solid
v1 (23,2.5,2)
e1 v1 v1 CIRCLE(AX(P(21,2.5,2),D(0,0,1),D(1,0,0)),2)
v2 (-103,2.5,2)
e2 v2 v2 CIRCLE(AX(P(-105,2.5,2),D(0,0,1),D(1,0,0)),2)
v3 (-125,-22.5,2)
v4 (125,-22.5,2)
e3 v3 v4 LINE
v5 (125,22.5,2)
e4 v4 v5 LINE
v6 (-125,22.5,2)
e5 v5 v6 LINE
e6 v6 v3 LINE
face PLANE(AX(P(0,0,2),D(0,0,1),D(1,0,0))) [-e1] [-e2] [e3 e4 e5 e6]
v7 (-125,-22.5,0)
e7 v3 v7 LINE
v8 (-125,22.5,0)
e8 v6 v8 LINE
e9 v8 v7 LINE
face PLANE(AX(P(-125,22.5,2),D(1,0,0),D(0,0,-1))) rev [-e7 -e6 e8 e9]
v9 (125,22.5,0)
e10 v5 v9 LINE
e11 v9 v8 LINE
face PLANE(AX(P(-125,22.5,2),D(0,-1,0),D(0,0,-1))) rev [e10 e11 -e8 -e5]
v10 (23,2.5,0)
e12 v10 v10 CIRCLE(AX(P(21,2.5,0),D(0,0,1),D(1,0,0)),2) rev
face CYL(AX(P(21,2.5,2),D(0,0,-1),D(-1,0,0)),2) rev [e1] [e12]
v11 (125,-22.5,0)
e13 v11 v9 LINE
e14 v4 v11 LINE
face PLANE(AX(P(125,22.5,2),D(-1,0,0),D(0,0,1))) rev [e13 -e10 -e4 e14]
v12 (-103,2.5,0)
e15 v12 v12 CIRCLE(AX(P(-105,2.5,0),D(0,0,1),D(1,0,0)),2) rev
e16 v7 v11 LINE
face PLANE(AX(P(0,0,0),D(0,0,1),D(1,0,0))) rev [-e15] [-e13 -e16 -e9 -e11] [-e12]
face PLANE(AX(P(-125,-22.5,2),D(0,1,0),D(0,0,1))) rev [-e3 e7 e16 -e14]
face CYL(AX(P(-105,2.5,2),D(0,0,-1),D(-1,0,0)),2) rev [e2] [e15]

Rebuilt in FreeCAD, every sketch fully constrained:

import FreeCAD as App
import Part
import Sketcher
Q = App.Units.Quantity

doc = App.newDocument("Part")
body = doc.addObject("PartDesign::Body", "Body")

# Sketch on XY plane
sketch1 = body.newObject("Sketcher::SketchObject", "Sketch")
sketch1.AttachmentSupport = (doc.getObject("XY_Plane"), [""])
sketch1.MapMode = "FlatFace"
sketch1.addGeometry([
    Part.LineSegment(App.Vector(-125, 22.5, 0), App.Vector(-125, -22.5, 0)),
    Part.LineSegment(App.Vector(-125, -22.5, 0), App.Vector(125, -22.5, 0)),
    Part.LineSegment(App.Vector(125, -22.5, 0), App.Vector(125, 22.5, 0)),
    Part.LineSegment(App.Vector(125, 22.5, 0), App.Vector(-125, 22.5, 0)),
], False)
sketch1.addConstraint([
    Sketcher.Constraint("Coincident", 0, 2, 1, 1),
    Sketcher.Constraint("Coincident", 1, 2, 2, 1),
    Sketcher.Constraint("Coincident", 2, 2, 3, 1),
    Sketcher.Constraint("Coincident", 3, 2, 0, 1),
    Sketcher.Constraint("Vertical", 0),
    Sketcher.Constraint("Horizontal", 1),
    Sketcher.Constraint("Vertical", 2),
    Sketcher.Constraint("Horizontal", 3),
    Sketcher.Constraint("Symmetric", 0, 2, 2, 2, -1, 1),
    Sketcher.Constraint("DistanceX", 1, 1, 1, 2, Q("250 mm")),
    Sketcher.Constraint("DistanceY", 0, 2, 0, 1, Q("45 mm")),
])
pad1 = body.newObject("PartDesign::Pad", "Pad")
pad1.Profile = sketch1
pad1.Length = 2

# Sketch on XY plane
sketch2 = body.newObject("Sketcher::SketchObject", "Sketch001")
sketch2.AttachmentSupport = (doc.getObject("XY_Plane"), [""])
sketch2.MapMode = "FlatFace"
sketch2.addGeometry([
    Part.Circle(App.Vector(-105, 2.5, 0), App.Vector(0, 0, 1), 2),
    Part.Circle(App.Vector(21, 2.5, 0), App.Vector(0, 0, 1), 2),
], False)
sketch2.addConstraint([
    Sketcher.Constraint("Equal", 0, 1),
    Sketcher.Constraint("Horizontal", 0, 3, 1, 3),
    Sketcher.Constraint("Diameter", 0, Q("4 mm")),
    Sketcher.Constraint("DistanceX", 0, 3, -1, 1, Q("105 mm")),
    Sketcher.Constraint("DistanceX", -1, 1, 1, 3, Q("21 mm")),
    Sketcher.Constraint("DistanceY", -1, 1, 0, 3, Q("2.5 mm")),
])
pocket1 = body.newObject("PartDesign::Pocket", "Pocket")
pocket1.Profile = sketch2
pocket1.Type = "ThroughAll"
pocket1.Midplane = True

doc.recompute()
